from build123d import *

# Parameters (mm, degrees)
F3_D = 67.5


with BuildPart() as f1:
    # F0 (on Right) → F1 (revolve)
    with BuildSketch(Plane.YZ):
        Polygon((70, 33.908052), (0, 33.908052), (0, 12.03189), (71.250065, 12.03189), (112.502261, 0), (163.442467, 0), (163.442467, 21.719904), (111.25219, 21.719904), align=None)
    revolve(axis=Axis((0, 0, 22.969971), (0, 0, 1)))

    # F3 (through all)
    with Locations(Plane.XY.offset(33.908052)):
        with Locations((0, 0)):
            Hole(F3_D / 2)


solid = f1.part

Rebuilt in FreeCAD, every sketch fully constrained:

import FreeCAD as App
import Part
import Sketcher
from FreeCAD import Vector
Q = App.Units.Quantity

doc = App.newDocument("Part")
body = doc.addObject("PartDesign::Body", "Body")

# Sketch on YZ plane
sketch1 = body.newObject("Sketcher::SketchObject", "Sketch")
sketch1.AttachmentSupport = (doc.getObject("YZ_Plane"), [""])
sketch1.MapMode = "FlatFace"
sketch1.addGeometry(Part.LineSegment(Vector(70, 34, 0), Vector(0, 34, 0)), False)
sketch1.addGeometry(Part.LineSegment(Vector(0, 34, 0), Vector(0, 12, 0)), False)
sketch1.addGeometry(Part.LineSegment(Vector(0, 12, 0), Vector(71, 12, 0)), False)
sketch1.addGeometry(Part.LineSegment(Vector(71, 12, 0), Vector(113, 0, 0)), False)
sketch1.addGeometry(Part.LineSegment(Vector(113, 0, 0), Vector(163, 0, 0)), False)
sketch1.addGeometry(Part.LineSegment(Vector(163, 0, 0), Vector(163, 22, 0)), False)
sketch1.addGeometry(Part.LineSegment(Vector(163, 22, 0), Vector(111, 22, 0)), False)
sketch1.addGeometry(Part.LineSegment(Vector(111, 22, 0), Vector(70, 34, 0)), False)
sketch1.addConstraint(Sketcher.Constraint("Coincident", 0, 2, 1, 1))
sketch1.addConstraint(Sketcher.Constraint("Coincident", 1, 2, 2, 1))
sketch1.addConstraint(Sketcher.Constraint("Coincident", 2, 2, 3, 1))
sketch1.addConstraint(Sketcher.Constraint("Coincident", 3, 2, 4, 1))
sketch1.addConstraint(Sketcher.Constraint("Coincident", 4, 2, 5, 1))
sketch1.addConstraint(Sketcher.Constraint("Coincident", 5, 2, 6, 1))
sketch1.addConstraint(Sketcher.Constraint("Coincident", 6, 2, 7, 1))
sketch1.addConstraint(Sketcher.Constraint("Coincident", 7, 2, 0, 1))
sketch1.addConstraint(Sketcher.Constraint("Horizontal", 0))
sketch1.addConstraint(Sketcher.Constraint("Vertical", 1))
sketch1.addConstraint(Sketcher.Constraint("Horizontal", 2))
sketch1.addConstraint(Sketcher.Constraint("Horizontal", 4))
sketch1.addConstraint(Sketcher.Constraint("Vertical", 5))
sketch1.addConstraint(Sketcher.Constraint("Horizontal", 6))
sketch1.addConstraint(Sketcher.Constraint("PointOnObject", 0, 2, -2))
sketch1.addConstraint(Sketcher.Constraint("PointOnObject", 3, 2, -1))
sketch1.addConstraint(Sketcher.Constraint("DistanceX", 0, 2, 0, 1, Q("70 mm")))
sketch1.addConstraint(Sketcher.Constraint("Angle", 7, Q("163.539984 deg")))
sketch1.addConstraint(Sketcher.Constraint("DistanceY", 1, 2, 1, 1, Q("21.876162 mm")))
sketch1.addConstraint(Sketcher.Constraint("DistanceX", 2, 2, 4, 2, Q("92.192402 mm")))
sketch1.addConstraint(Sketcher.Constraint("DistanceX", 2, 1, 2, 2, Q("71.250065 mm")))
sketch1.addConstraint(Sketcher.Constraint("DistanceX", 4, 1, 4, 2, Q("50.940206 mm")))
sketch1.addConstraint(Sketcher.Constraint("DistanceX", 6, 2, 6, 1, Q("52.190277 mm")))
sketch1.addConstraint(Sketcher.Constraint("DistanceY", 5, 1, 5, 2, Q("21.719904 mm")))
revolution = body.newObject("PartDesign::Revolution", "Revolution")
revolution.Profile = sketch1
revolution.ReferenceAxis = (sketch1, ["V_Axis"])
revolution.Angle = 360

# Sketch on XY plane
sketch2 = body.newObject("Sketcher::SketchObject", "Sketch001")
sketch2.AttachmentSupport = (doc.getObject("XY_Plane"), [""])
sketch2.MapMode = "FlatFace"
sketch2.AttachmentOffset = App.Placement(Vector(0, 0, 33.908052), App.Rotation())
sketch2.addGeometry(Part.Circle(Vector(0, 0, 0), Vector(0, 0, 1), 34), False)
sketch2.addConstraint(Sketcher.Constraint("Coincident", 0, 3, -1, 1))
sketch2.addConstraint(Sketcher.Constraint("Diameter", 0, Q("67.5 mm")))
doc.recompute()
hole = body.newObject("PartDesign::Hole", "Hole")
hole.Profile = sketch2
hole.ThreadType = "None"
hole.Diameter = 67.5
hole.DepthType = "ThroughAll"

doc.recompute()
